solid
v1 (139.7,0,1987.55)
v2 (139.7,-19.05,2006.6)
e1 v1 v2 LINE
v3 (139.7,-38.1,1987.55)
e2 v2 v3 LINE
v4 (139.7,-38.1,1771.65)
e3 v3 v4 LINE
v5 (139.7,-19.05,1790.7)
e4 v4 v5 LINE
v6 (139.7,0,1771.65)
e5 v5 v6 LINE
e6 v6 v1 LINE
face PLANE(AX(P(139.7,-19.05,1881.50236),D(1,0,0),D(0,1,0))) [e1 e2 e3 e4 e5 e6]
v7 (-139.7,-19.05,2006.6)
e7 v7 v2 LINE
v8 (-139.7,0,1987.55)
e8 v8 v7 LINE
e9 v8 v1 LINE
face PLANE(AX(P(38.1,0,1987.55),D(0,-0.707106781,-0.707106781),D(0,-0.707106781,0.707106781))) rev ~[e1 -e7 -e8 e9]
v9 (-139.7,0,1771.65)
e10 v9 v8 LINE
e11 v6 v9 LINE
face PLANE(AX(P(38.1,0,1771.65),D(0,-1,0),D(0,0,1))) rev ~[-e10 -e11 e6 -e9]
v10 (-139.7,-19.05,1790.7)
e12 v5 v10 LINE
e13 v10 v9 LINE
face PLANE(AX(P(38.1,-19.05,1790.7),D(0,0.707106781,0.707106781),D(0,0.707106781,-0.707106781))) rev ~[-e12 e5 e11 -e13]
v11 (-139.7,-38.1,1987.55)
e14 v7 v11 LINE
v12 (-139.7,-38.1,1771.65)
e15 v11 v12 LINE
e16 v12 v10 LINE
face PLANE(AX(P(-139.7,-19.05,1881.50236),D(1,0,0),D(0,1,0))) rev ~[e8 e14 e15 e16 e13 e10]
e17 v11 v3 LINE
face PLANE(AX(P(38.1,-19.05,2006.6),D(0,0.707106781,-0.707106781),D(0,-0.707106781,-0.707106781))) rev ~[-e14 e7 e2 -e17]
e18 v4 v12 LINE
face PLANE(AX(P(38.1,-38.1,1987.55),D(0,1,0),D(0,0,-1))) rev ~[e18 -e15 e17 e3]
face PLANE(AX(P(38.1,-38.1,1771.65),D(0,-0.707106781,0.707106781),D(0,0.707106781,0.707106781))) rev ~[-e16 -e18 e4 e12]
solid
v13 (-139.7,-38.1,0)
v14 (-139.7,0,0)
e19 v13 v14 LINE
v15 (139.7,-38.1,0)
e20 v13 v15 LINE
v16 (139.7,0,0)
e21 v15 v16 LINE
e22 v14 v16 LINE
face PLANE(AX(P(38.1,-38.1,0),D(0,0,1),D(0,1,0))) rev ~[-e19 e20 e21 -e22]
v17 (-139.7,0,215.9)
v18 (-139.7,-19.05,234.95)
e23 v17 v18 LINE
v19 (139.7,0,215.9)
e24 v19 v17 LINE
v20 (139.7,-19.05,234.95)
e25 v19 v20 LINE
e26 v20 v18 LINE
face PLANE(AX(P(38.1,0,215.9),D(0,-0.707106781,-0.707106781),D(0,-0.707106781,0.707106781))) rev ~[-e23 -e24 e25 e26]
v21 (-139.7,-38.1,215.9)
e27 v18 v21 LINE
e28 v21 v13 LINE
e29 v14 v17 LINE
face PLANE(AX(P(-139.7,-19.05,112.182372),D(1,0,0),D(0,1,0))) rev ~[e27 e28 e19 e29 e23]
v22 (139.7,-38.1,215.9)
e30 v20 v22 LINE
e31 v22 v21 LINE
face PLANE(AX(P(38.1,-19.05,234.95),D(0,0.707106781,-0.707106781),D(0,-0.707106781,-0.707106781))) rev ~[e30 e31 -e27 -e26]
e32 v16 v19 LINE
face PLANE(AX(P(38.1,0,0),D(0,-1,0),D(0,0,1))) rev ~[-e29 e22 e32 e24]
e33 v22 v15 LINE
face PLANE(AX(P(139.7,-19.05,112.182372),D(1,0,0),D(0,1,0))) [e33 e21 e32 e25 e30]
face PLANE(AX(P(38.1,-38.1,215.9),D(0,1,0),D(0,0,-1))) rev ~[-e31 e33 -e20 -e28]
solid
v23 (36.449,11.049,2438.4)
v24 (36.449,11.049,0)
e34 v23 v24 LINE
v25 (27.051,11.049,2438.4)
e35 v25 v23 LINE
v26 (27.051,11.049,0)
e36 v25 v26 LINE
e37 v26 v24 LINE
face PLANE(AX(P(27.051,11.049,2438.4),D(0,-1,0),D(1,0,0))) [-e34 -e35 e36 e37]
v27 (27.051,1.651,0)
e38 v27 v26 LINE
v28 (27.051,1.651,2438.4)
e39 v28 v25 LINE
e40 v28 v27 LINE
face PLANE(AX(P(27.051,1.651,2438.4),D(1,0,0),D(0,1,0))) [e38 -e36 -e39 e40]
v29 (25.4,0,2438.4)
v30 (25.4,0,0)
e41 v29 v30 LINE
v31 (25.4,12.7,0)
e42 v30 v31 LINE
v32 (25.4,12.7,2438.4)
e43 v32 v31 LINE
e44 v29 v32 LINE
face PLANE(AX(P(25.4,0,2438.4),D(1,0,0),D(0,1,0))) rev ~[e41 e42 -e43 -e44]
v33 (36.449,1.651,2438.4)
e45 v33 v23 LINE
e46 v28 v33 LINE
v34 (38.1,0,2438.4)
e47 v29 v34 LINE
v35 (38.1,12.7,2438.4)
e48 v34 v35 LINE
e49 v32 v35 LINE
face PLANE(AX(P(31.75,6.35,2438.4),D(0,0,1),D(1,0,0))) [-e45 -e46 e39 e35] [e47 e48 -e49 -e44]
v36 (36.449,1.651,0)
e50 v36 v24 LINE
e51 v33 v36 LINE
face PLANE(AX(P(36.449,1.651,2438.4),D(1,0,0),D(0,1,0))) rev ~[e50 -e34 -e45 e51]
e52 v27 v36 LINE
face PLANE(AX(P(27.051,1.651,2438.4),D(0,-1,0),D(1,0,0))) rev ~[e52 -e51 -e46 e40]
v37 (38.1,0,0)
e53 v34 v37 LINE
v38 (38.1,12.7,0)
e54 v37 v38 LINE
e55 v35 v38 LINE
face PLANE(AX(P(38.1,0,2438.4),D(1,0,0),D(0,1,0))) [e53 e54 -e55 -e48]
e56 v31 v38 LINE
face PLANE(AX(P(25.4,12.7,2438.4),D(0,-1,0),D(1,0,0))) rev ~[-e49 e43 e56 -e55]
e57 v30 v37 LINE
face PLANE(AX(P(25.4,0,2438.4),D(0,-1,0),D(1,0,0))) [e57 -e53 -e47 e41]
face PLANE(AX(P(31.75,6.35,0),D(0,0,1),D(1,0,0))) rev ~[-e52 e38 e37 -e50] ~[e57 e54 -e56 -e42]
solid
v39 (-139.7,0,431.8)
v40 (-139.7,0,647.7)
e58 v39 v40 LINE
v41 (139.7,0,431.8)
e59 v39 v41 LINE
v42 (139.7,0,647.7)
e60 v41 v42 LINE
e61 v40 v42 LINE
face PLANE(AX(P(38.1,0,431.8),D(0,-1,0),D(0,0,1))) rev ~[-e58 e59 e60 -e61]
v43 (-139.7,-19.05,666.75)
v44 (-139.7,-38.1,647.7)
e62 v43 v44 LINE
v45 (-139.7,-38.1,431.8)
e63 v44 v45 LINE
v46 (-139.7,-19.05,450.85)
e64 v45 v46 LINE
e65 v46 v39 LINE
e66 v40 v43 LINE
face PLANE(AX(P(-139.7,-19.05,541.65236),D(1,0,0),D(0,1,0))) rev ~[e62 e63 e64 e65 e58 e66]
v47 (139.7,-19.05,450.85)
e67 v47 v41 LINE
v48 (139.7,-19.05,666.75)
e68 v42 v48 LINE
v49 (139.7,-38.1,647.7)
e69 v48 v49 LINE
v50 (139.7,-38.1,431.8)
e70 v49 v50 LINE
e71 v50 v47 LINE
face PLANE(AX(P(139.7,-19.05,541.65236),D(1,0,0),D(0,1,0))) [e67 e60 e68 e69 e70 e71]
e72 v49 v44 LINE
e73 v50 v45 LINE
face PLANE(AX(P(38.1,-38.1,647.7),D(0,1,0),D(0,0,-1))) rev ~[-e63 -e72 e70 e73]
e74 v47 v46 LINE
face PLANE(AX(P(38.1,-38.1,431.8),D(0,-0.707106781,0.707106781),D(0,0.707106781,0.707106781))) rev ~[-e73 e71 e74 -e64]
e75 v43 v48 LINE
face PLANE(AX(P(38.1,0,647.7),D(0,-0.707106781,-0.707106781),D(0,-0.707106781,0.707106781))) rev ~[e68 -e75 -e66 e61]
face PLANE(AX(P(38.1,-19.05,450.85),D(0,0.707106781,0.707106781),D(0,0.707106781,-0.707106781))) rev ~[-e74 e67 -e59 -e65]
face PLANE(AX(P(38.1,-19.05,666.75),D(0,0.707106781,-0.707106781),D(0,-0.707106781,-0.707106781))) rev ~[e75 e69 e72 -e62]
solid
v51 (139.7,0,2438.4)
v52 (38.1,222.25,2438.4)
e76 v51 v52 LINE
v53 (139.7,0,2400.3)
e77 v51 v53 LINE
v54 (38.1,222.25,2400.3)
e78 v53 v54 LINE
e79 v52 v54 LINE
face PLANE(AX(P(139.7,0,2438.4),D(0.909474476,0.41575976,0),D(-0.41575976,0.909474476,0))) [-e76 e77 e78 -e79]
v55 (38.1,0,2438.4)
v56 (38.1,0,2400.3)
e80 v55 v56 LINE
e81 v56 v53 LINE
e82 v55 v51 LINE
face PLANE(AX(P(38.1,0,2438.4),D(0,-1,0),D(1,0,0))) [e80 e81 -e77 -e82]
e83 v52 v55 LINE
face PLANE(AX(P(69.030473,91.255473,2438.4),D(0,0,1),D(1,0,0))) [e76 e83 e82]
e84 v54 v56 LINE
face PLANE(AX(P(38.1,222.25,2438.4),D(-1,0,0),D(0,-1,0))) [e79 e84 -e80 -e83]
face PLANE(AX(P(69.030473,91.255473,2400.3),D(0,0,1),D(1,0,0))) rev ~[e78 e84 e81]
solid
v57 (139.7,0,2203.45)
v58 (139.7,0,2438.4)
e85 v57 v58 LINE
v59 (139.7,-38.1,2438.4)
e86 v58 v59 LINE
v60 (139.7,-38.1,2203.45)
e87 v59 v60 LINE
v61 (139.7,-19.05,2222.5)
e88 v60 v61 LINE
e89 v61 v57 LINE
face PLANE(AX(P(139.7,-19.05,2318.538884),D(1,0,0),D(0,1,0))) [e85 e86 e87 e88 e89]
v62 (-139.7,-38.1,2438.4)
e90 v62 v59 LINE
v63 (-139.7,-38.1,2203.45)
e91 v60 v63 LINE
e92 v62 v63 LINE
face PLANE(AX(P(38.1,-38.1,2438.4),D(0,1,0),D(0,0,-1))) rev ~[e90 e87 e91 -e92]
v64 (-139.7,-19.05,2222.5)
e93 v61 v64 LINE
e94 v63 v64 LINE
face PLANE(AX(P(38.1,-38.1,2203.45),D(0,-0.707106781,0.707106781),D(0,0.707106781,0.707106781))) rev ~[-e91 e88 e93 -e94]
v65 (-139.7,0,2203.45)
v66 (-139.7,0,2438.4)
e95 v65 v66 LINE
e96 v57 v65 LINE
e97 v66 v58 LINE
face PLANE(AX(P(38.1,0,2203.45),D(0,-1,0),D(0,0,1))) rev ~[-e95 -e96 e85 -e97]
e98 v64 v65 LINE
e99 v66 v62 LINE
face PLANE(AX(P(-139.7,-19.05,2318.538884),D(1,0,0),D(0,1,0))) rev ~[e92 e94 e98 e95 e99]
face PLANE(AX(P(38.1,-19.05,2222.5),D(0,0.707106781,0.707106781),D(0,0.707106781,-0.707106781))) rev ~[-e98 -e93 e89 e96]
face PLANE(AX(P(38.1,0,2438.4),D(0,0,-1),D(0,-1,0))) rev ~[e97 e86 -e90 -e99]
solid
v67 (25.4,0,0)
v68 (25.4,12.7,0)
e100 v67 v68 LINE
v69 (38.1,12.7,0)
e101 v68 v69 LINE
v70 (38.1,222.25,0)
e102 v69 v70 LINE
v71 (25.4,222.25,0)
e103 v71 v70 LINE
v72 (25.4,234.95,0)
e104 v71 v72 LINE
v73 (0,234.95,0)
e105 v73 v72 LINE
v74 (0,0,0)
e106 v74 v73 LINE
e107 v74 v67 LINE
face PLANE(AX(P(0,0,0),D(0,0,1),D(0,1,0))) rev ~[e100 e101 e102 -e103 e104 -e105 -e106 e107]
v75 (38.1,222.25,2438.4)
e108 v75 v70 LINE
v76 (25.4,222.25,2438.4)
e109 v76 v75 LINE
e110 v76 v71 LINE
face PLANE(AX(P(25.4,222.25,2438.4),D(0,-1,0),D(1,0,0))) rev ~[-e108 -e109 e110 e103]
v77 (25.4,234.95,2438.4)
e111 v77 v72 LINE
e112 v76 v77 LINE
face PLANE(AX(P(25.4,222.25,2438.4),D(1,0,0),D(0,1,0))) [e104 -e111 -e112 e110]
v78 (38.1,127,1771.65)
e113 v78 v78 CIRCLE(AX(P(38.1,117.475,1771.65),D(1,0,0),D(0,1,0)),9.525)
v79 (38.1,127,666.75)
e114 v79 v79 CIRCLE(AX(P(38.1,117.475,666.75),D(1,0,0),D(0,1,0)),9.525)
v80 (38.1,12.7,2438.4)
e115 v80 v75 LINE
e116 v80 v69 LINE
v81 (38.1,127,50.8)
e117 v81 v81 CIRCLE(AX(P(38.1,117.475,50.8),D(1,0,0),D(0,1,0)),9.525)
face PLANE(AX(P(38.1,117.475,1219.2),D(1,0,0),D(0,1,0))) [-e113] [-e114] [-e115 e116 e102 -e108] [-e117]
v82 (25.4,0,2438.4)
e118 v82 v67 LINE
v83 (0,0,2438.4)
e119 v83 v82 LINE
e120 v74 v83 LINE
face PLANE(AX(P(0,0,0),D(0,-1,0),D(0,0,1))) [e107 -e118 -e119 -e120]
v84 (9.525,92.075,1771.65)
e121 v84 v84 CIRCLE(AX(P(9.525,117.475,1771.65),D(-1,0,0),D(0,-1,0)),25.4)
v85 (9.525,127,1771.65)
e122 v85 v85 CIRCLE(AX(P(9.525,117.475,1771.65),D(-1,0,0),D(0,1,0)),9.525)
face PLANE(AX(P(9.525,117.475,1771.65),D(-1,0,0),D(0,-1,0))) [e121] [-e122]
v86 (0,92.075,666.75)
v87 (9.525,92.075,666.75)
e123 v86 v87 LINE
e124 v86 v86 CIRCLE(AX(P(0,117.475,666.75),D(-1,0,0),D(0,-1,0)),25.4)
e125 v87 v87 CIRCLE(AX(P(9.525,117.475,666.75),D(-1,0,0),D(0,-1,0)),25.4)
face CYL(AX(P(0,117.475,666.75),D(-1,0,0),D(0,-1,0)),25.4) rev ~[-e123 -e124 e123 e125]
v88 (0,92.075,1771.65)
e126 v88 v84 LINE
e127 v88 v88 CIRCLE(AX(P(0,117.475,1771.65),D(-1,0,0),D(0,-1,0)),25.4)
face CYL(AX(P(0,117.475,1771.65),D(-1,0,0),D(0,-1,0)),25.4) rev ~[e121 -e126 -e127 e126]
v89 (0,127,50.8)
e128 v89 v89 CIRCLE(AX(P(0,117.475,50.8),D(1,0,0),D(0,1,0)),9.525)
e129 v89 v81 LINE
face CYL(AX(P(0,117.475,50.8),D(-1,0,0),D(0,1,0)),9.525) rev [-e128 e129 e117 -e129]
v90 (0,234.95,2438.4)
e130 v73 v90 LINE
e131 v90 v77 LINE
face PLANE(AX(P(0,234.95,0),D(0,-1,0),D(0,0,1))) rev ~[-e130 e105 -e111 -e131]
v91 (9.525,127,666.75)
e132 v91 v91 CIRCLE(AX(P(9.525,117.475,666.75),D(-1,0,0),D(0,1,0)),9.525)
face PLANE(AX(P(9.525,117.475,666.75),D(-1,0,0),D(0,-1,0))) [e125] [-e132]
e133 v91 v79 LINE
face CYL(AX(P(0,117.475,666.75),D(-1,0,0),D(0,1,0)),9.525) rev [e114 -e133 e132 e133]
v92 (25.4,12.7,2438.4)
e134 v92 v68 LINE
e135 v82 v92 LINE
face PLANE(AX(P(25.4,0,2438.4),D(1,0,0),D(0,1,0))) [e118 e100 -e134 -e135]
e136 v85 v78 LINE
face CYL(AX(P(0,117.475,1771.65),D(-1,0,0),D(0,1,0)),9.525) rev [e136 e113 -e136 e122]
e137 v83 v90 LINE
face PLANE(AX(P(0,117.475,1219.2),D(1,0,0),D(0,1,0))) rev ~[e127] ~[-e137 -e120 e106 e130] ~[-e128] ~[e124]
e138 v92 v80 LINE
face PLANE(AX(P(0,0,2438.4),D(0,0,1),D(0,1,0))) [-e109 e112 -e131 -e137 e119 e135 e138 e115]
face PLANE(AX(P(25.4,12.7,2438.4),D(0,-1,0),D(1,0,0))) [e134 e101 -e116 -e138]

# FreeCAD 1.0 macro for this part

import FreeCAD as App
import Part
import Sketcher
Q = App.Units.Quantity


def add_polygon(sketch, points):
    """Adds a closed chain of lines whose ends are joined by coincident constraints."""
    first, n = sketch.GeometryCount, len(points)
    for a, b in zip(points, points[1:] + points[:1]):
        sketch.addGeometry(Part.LineSegment(App.Vector(*a, 0), App.Vector(*b, 0)), False)
    for i in range(n):
        sketch.addConstraint(Sketcher.Constraint("Coincident", first + i, 2, first + (i + 1) % n, 1))

doc = App.newDocument("Part")
body = doc.addObject("PartDesign::Body", "Body")

sketch1 = body.newObject("Sketcher::SketchObject", "Sketch")
sketch1.AttachmentSupport = (doc.getObject("YZ_Plane"), [""])
sketch1.MapMode = "FlatFace"
add_polygon(sketch1, [(0, 2438), (0, 0), (235, 0), (235, 2438)])
sketch1.addGeometry(Part.Circle(App.Vector(117, 51, 0), App.Vector(0, 0, 1), 10), False)
sketch1.addGeometry(Part.Circle(App.Vector(117, 667, 0), App.Vector(0, 0, 1), 10), False)
sketch1.addGeometry(Part.Circle(App.Vector(117, 1772, 0), App.Vector(0, 0, 1), 10), False)
sketch1.addConstraint(Sketcher.Constraint("Vertical", 0))
sketch1.addConstraint(Sketcher.Constraint("Horizontal", 1))
sketch1.addConstraint(Sketcher.Constraint("Vertical", 2))
sketch1.addConstraint(Sketcher.Constraint("Horizontal", 3))
sketch1.addConstraint(Sketcher.Constraint("Coincident", 0, 2, -1, 1))
sketch1.addConstraint(Sketcher.Constraint("Equal", 4, 5))
sketch1.addConstraint(Sketcher.Constraint("Equal", 5, 6))
sketch1.addConstraint(Sketcher.Constraint("Vertical", 4, 3, 5, 3))
sketch1.addConstraint(Sketcher.Constraint("Vertical", 5, 3, 6, 3))
sketch1.addConstraint(Sketcher.Constraint("Diameter", 4, Q("0.75 in")))
sketch1.addConstraint(Sketcher.Constraint("DistanceY", 0, 2, 0, 1, Q("96 in")))
sketch1.addConstraint(Sketcher.Constraint("DistanceY", -1, 1, 4, 3, Q("2 in")))
sketch1.addConstraint(Sketcher.Constraint("DistanceX", 1, 1, 1, 2, Q("9.25 in")))
sketch1.addConstraint(Sketcher.Constraint("DistanceY", 5, 3, 6, 3, Q("43.5 in")))
sketch1.addConstraint(Sketcher.Constraint("DistanceY", -1, 1, 5, 3, Q("26.25 in")))
sketch1.addConstraint(Sketcher.Constraint("DistanceX", -1, 1, 4, 3, Q("4.625 in")))
pad1 = body.newObject("PartDesign::Pad", "Pad")
pad1.Profile = sketch1
pad1.Length = Q("1.5 in")

sketch2 = body.newObject("Sketcher::SketchObject", "Sketch001")
sketch2.AttachmentSupport = (doc.getObject("XY_Plane"), [""])
sketch2.MapMode = "FlatFace"
sketch2.AttachmentOffset = App.Placement(App.Vector(0, 0, 96 * 25.4), App.Rotation())
add_polygon(sketch2, [(25, 235), (25, 222), (38, 222), (38, 235)])
add_polygon(sketch2, [(25, 13), (25, 0), (38, 0), (38, 13)])
sketch2.addConstraint(Sketcher.Constraint("Vertical", 0))
sketch2.addConstraint(Sketcher.Constraint("Horizontal", 1))
sketch2.addConstraint(Sketcher.Constraint("Vertical", 2))
sketch2.addConstraint(Sketcher.Constraint("Horizontal", 3))
sketch2.addConstraint(Sketcher.Constraint("Vertical", 4))
sketch2.addConstraint(Sketcher.Constraint("Horizontal", 5))
sketch2.addConstraint(Sketcher.Constraint("Vertical", 6))
sketch2.addConstraint(Sketcher.Constraint("Horizontal", 7))
sketch2.addConstraint(Sketcher.Constraint("PointOnObject", 4, 2, -1))
sketch2.addConstraint(Sketcher.Constraint("Vertical", 3, 2, 4, 2))
sketch2.addConstraint(Sketcher.Constraint("Vertical", 2, 2, 5, 2))
sketch2.addConstraint(Sketcher.Constraint("Equal", 7, 0))
sketch2.addConstraint(Sketcher.Constraint("Equal", 2, 4))
sketch2.addConstraint(Sketcher.Constraint("DistanceX", 1, 1, 1, 2, Q("0.5 in")))
sketch2.addConstraint(Sketcher.Constraint("DistanceX", -1, 1, 0, 2, Q("1 in")))
sketch2.addConstraint(Sketcher.Constraint("DistanceY", -1, 1, 0, 2, Q("8.75 in")))
pocket1 = body.newObject("PartDesign::Pocket", "Pocket")
pocket1.Profile = sketch2
pocket1.Type = "ThroughAll"

sketch3 = body.newObject("Sketcher::SketchObject", "Sketch002")
sketch3.AttachmentSupport = (doc.getObject("YZ_Plane"), [""])
sketch3.MapMode = "FlatFace"
sketch3.addGeometry(Part.Circle(App.Vector(117, 1772, 0), App.Vector(0, 0, 1), 25), False)
sketch3.addGeometry(Part.Circle(App.Vector(117, 667, 0), App.Vector(0, 0, 1), 25), False)
sketch3.addConstraint(Sketcher.Constraint("Equal", 0, 1))
sketch3.addConstraint(Sketcher.Constraint("Vertical", 0, 3, 1, 3))
sketch3.addConstraint(Sketcher.Constraint("Diameter", 0, Q("2 in")))
sketch3.addConstraint(Sketcher.Constraint("DistanceY", 1, 3, 0, 3, Q("43.5 in")))
sketch3.addConstraint(Sketcher.Constraint("DistanceY", -1, 1, 0, 3, Q("69.75 in")))
sketch3.addConstraint(Sketcher.Constraint("DistanceX", -1, 1, 0, 3, Q("4.625 in")))
pocket2 = body.newObject("PartDesign::Pocket", "Pocket001")
pocket2.Profile = sketch3
pocket2.Length = Q("0.375 in")
pocket2.Reversed = True
body2 = doc.addObject("PartDesign::Body", "Body001")

sketch4 = body2.newObject("Sketcher::SketchObject", "Sketch003")
sketch4.AttachmentSupport = (doc.getObject("YZ_Plane001"), [""])
sketch4.MapMode = "FlatFace"
sketch4.AttachmentOffset = App.Placement(App.Vector(0, 0, 1.5 * 25.4), App.Rotation())
add_polygon(sketch4, [(-38, 216), (-38, 0), (0, 0), (0, 216), (-19, 235)])
sketch4.addConstraint(Sketcher.Constraint("Vertical", 0))
sketch4.addConstraint(Sketcher.Constraint("Horizontal", 1))
sketch4.addConstraint(Sketcher.Constraint("Vertical", 2))
sketch4.addConstraint(Sketcher.Constraint("Coincident", 1, 2, -1, 1))
sketch4.addConstraint(Sketcher.Constraint("Perpendicular", 3, 4))
sketch4.addConstraint(Sketcher.Constraint("Horizontal", 2, 2, 4, 2))
sketch4.addConstraint(Sketcher.Constraint("Equal", 3, 4))
sketch4.addConstraint(Sketcher.Constraint("DistanceX", 1, 1, 1, 2, Q("1.5 in")))
sketch4.addConstraint(Sketcher.Constraint("DistanceY", 0, 2, 0, 1, Q("8.5 in")))
pad2 = body2.newObject("PartDesign::Pad", "Pad001")
pad2.Profile = sketch4
pad2.Type = "TwoLengths"
pad2.Length = Q("7 in")
pad2.Length2 = Q("4 in")
pad2.Reversed = True
body3 = doc.addObject("PartDesign::Body", "Body002")

sketch5 = body3.newObject("Sketcher::SketchObject", "Sketch004")
sketch5.AttachmentSupport = (doc.getObject("YZ_Plane002"), [""])
sketch5.MapMode = "FlatFace"
sketch5.AttachmentOffset = App.Placement(App.Vector(0, 0, 1.5 * 25.4), App.Rotation())
add_polygon(sketch5, [(-19, 451), (0, 432), (0, 648), (-19, 667), (-38, 648), (-38, 432)])
sketch5.addConstraint(Sketcher.Constraint("Vertical", 1))
sketch5.addConstraint(Sketcher.Constraint("Vertical", 4))
sketch5.addConstraint(Sketcher.Constraint("PointOnObject", 0, 2, -2))
sketch5.addConstraint(Sketcher.Constraint("Parallel", 0, 2))
sketch5.addConstraint(Sketcher.Constraint("Perpendicular", 2, 3))
sketch5.addConstraint(Sketcher.Constraint("Parallel", 3, 5))
sketch5.addConstraint(Sketcher.Constraint("Horizontal", 1, 2, 3, 2))
sketch5.addConstraint(Sketcher.Constraint("Horizontal", 0, 2, 4, 2))
sketch5.addConstraint(Sketcher.Constraint("Equal", 2, 3))
sketch5.addConstraint(Sketcher.Constraint("DistanceY", 1, 1, 1, 2, Q("8.5 in")))
sketch5.addConstraint(Sketcher.Constraint("DistanceY", -1, 1, 0, 2, Q("17 in")))
sketch5.addConstraint(Sketcher.Constraint("DistanceX", 3, 2, -1, 1, Q("1.5 in")))
pad3 = body3.newObject("PartDesign::Pad", "Pad002")
pad3.Profile = sketch5
pad3.Type = "TwoLengths"
pad3.Length = Q("7 in")
pad3.Length2 = Q("4 in")
pad3.Reversed = True
body4 = doc.addObject("PartDesign::Body", "Body003")

sketch6 = body4.newObject("Sketcher::SketchObject", "Sketch005")
sketch6.AttachmentSupport = (doc.getObject("YZ_Plane003"), [""])
sketch6.MapMode = "FlatFace"
sketch6.AttachmentOffset = App.Placement(App.Vector(0, 0, 1.5 * 25.4), App.Rotation())
add_polygon(sketch6, [(0, 2203), (0, 2438), (-38, 2438), (-38, 2203), (-19, 2222)])
sketch6.addConstraint(Sketcher.Constraint("Vertical", 0))
sketch6.addConstraint(Sketcher.Constraint("Horizontal", 1))
sketch6.addConstraint(Sketcher.Constraint("Vertical", 2))
sketch6.addConstraint(Sketcher.Constraint("PointOnObject", 0, 2, -2))
sketch6.addConstraint(Sketcher.Constraint("Perpendicular", 3, 4))
sketch6.addConstraint(Sketcher.Constraint("Horizontal", 2, 2, 4, 2))
sketch6.addConstraint(Sketcher.Constraint("Equal", 3, 4))
sketch6.addConstraint(Sketcher.Constraint("DistanceX", 1, 2, 1, 1, Q("1.5 in")))
sketch6.addConstraint(Sketcher.Constraint("DistanceY", -1, 1, 0, 2, Q("96 in")))
sketch6.addConstraint(Sketcher.Constraint("DistanceY", 0, 1, 0, 2, Q("9.25 in")))
pad4 = body4.newObject("PartDesign::Pad", "Pad003")
pad4.Profile = sketch6
pad4.Type = "TwoLengths"
pad4.Length = Q("7 in")
pad4.Length2 = Q("4 in")
pad4.Reversed = True
body5 = doc.addObject("PartDesign::Body", "Body004")

sketch7 = body5.newObject("Sketcher::SketchObject", "Sketch006")
sketch7.AttachmentSupport = (doc.getObject("YZ_Plane004"), [""])
sketch7.MapMode = "FlatFace"
sketch7.AttachmentOffset = App.Placement(App.Vector(0, 0, 1.5 * 25.4), App.Rotation())
add_polygon(sketch7, [(0, 1772), (0, 1988), (-19, 2007), (-38, 1988), (-38, 1772), (-19, 1791)])
sketch7.addConstraint(Sketcher.Constraint("Vertical", 0))
sketch7.addConstraint(Sketcher.Constraint("Vertical", 3))
sketch7.addConstraint(Sketcher.Constraint("PointOnObject", 0, 2, -2))
sketch7.addConstraint(Sketcher.Constraint("Perpendicular", 1, 2))
sketch7.addConstraint(Sketcher.Constraint("Parallel", 2, 4))
sketch7.addConstraint(Sketcher.Constraint("Perpendicular", 4, 5))
sketch7.addConstraint(Sketcher.Constraint("Horizontal", 0, 2, 2, 2))
sketch7.addConstraint(Sketcher.Constraint("Horizontal", 3, 2, 5, 2))
sketch7.addConstraint(Sketcher.Constraint("Equal", 1, 2))
sketch7.addConstraint(Sketcher.Constraint("DistanceY", 0, 1, 0, 2, Q("8.5 in")))
sketch7.addConstraint(Sketcher.Constraint("DistanceY", -1, 1, 1, 2, Q("79 in")))
sketch7.addConstraint(Sketcher.Constraint("DistanceX", 2, 2, -1, 1, Q("1.5 in")))
pad5 = body5.newObject("PartDesign::Pad", "Pad004")
pad5.Profile = sketch7
pad5.Type = "TwoLengths"
pad5.Length = Q("7 in")
pad5.Length2 = Q("4 in")
pad5.Reversed = True
body6 = doc.addObject("PartDesign::Body", "Body005")

sketch8 = body6.newObject("Sketcher::SketchObject", "Sketch007")
sketch8.AttachmentSupport = (doc.getObject("XY_Plane005"), [""])
sketch8.MapMode = "FlatFace"
sketch8.AttachmentOffset = App.Placement(App.Vector(0, 0, 96 * 25.4), App.Rotation())
add_polygon(sketch8, [(140, 0), (38, 222), (38, 0)])
sketch8.addConstraint(Sketcher.Constraint("Vertical", 1))
sketch8.addConstraint(Sketcher.Constraint("Horizontal", 2))
sketch8.addConstraint(Sketcher.Constraint("PointOnObject", 1, 2, -1))
sketch8.addConstraint(Sketcher.Constraint("DistanceX", 2, 1, 2, 2, Q("4 in")))
sketch8.addConstraint(Sketcher.Constraint("DistanceY", 1, 2, 1, 1, Q("8.75 in")))
sketch8.addConstraint(Sketcher.Constraint("DistanceX", -1, 1, 0, 2, Q("1.5 in")))
pad6 = body6.newObject("PartDesign::Pad", "Pad005")
pad6.Profile = sketch8
pad6.Length = Q("1.5 in")
pad6.Reversed = True
body7 = doc.addObject("PartDesign::Body", "Body006")

sketch9 = body7.newObject("Sketcher::SketchObject", "Sketch008")
sketch9.AttachmentSupport = (doc.getObject("XY_Plane006"), [""])
sketch9.MapMode = "FlatFace"
sketch9.AttachmentOffset = App.Placement(App.Vector(0, 0, 96 * 25.4), App.Rotation())
add_polygon(sketch9, [(25, 13), (25, 0), (38, 0), (38, 13)])
add_polygon(sketch9, [(36, 2), (27, 2), (27, 11), (36, 11)])
sketch9.addConstraint(Sketcher.Constraint("Vertical", 0))
sketch9.addConstraint(Sketcher.Constraint("Horizontal", 1))
sketch9.addConstraint(Sketcher.Constraint("Vertical", 2))
sketch9.addConstraint(Sketcher.Constraint("Horizontal", 3))
sketch9.addConstraint(Sketcher.Constraint("Horizontal", 4))
sketch9.addConstraint(Sketcher.Constraint("Vertical", 5))
sketch9.addConstraint(Sketcher.Constraint("Horizontal", 6))
sketch9.addConstraint(Sketcher.Constraint("Vertical", 7))
sketch9.addConstraint(Sketcher.Constraint("PointOnObject", 0, 2, -1))
sketch9.addConstraint(Sketcher.Constraint("Equal", 3, 0))
sketch9.addConstraint(Sketcher.Constraint("Equal", 6, 5))
sketch9.addConstraint(Sketcher.Constraint("DistanceX", 1, 1, 1, 2, Q("0.5 in")))
sketch9.addConstraint(Sketcher.Constraint("DistanceX", -1, 1, 0, 2, Q("1 in")))
sketch9.addConstraint(Sketcher.Constraint("DistanceX", 4, 2, 4, 1, Q("0.37 in")))
sketch9.addConstraint(Sketcher.Constraint("DistanceX", -1, 1, 4, 2, Q("1.065 in")))
sketch9.addConstraint(Sketcher.Constraint("DistanceY", -1, 1, 4, 2, Q("0.065 in")))
pad7 = body7.newObject("PartDesign::Pad", "Pad006")
pad7.Profile = sketch9
pad7.Length = Q("96 in")
pad7.Reversed = True

doc.recompute()
